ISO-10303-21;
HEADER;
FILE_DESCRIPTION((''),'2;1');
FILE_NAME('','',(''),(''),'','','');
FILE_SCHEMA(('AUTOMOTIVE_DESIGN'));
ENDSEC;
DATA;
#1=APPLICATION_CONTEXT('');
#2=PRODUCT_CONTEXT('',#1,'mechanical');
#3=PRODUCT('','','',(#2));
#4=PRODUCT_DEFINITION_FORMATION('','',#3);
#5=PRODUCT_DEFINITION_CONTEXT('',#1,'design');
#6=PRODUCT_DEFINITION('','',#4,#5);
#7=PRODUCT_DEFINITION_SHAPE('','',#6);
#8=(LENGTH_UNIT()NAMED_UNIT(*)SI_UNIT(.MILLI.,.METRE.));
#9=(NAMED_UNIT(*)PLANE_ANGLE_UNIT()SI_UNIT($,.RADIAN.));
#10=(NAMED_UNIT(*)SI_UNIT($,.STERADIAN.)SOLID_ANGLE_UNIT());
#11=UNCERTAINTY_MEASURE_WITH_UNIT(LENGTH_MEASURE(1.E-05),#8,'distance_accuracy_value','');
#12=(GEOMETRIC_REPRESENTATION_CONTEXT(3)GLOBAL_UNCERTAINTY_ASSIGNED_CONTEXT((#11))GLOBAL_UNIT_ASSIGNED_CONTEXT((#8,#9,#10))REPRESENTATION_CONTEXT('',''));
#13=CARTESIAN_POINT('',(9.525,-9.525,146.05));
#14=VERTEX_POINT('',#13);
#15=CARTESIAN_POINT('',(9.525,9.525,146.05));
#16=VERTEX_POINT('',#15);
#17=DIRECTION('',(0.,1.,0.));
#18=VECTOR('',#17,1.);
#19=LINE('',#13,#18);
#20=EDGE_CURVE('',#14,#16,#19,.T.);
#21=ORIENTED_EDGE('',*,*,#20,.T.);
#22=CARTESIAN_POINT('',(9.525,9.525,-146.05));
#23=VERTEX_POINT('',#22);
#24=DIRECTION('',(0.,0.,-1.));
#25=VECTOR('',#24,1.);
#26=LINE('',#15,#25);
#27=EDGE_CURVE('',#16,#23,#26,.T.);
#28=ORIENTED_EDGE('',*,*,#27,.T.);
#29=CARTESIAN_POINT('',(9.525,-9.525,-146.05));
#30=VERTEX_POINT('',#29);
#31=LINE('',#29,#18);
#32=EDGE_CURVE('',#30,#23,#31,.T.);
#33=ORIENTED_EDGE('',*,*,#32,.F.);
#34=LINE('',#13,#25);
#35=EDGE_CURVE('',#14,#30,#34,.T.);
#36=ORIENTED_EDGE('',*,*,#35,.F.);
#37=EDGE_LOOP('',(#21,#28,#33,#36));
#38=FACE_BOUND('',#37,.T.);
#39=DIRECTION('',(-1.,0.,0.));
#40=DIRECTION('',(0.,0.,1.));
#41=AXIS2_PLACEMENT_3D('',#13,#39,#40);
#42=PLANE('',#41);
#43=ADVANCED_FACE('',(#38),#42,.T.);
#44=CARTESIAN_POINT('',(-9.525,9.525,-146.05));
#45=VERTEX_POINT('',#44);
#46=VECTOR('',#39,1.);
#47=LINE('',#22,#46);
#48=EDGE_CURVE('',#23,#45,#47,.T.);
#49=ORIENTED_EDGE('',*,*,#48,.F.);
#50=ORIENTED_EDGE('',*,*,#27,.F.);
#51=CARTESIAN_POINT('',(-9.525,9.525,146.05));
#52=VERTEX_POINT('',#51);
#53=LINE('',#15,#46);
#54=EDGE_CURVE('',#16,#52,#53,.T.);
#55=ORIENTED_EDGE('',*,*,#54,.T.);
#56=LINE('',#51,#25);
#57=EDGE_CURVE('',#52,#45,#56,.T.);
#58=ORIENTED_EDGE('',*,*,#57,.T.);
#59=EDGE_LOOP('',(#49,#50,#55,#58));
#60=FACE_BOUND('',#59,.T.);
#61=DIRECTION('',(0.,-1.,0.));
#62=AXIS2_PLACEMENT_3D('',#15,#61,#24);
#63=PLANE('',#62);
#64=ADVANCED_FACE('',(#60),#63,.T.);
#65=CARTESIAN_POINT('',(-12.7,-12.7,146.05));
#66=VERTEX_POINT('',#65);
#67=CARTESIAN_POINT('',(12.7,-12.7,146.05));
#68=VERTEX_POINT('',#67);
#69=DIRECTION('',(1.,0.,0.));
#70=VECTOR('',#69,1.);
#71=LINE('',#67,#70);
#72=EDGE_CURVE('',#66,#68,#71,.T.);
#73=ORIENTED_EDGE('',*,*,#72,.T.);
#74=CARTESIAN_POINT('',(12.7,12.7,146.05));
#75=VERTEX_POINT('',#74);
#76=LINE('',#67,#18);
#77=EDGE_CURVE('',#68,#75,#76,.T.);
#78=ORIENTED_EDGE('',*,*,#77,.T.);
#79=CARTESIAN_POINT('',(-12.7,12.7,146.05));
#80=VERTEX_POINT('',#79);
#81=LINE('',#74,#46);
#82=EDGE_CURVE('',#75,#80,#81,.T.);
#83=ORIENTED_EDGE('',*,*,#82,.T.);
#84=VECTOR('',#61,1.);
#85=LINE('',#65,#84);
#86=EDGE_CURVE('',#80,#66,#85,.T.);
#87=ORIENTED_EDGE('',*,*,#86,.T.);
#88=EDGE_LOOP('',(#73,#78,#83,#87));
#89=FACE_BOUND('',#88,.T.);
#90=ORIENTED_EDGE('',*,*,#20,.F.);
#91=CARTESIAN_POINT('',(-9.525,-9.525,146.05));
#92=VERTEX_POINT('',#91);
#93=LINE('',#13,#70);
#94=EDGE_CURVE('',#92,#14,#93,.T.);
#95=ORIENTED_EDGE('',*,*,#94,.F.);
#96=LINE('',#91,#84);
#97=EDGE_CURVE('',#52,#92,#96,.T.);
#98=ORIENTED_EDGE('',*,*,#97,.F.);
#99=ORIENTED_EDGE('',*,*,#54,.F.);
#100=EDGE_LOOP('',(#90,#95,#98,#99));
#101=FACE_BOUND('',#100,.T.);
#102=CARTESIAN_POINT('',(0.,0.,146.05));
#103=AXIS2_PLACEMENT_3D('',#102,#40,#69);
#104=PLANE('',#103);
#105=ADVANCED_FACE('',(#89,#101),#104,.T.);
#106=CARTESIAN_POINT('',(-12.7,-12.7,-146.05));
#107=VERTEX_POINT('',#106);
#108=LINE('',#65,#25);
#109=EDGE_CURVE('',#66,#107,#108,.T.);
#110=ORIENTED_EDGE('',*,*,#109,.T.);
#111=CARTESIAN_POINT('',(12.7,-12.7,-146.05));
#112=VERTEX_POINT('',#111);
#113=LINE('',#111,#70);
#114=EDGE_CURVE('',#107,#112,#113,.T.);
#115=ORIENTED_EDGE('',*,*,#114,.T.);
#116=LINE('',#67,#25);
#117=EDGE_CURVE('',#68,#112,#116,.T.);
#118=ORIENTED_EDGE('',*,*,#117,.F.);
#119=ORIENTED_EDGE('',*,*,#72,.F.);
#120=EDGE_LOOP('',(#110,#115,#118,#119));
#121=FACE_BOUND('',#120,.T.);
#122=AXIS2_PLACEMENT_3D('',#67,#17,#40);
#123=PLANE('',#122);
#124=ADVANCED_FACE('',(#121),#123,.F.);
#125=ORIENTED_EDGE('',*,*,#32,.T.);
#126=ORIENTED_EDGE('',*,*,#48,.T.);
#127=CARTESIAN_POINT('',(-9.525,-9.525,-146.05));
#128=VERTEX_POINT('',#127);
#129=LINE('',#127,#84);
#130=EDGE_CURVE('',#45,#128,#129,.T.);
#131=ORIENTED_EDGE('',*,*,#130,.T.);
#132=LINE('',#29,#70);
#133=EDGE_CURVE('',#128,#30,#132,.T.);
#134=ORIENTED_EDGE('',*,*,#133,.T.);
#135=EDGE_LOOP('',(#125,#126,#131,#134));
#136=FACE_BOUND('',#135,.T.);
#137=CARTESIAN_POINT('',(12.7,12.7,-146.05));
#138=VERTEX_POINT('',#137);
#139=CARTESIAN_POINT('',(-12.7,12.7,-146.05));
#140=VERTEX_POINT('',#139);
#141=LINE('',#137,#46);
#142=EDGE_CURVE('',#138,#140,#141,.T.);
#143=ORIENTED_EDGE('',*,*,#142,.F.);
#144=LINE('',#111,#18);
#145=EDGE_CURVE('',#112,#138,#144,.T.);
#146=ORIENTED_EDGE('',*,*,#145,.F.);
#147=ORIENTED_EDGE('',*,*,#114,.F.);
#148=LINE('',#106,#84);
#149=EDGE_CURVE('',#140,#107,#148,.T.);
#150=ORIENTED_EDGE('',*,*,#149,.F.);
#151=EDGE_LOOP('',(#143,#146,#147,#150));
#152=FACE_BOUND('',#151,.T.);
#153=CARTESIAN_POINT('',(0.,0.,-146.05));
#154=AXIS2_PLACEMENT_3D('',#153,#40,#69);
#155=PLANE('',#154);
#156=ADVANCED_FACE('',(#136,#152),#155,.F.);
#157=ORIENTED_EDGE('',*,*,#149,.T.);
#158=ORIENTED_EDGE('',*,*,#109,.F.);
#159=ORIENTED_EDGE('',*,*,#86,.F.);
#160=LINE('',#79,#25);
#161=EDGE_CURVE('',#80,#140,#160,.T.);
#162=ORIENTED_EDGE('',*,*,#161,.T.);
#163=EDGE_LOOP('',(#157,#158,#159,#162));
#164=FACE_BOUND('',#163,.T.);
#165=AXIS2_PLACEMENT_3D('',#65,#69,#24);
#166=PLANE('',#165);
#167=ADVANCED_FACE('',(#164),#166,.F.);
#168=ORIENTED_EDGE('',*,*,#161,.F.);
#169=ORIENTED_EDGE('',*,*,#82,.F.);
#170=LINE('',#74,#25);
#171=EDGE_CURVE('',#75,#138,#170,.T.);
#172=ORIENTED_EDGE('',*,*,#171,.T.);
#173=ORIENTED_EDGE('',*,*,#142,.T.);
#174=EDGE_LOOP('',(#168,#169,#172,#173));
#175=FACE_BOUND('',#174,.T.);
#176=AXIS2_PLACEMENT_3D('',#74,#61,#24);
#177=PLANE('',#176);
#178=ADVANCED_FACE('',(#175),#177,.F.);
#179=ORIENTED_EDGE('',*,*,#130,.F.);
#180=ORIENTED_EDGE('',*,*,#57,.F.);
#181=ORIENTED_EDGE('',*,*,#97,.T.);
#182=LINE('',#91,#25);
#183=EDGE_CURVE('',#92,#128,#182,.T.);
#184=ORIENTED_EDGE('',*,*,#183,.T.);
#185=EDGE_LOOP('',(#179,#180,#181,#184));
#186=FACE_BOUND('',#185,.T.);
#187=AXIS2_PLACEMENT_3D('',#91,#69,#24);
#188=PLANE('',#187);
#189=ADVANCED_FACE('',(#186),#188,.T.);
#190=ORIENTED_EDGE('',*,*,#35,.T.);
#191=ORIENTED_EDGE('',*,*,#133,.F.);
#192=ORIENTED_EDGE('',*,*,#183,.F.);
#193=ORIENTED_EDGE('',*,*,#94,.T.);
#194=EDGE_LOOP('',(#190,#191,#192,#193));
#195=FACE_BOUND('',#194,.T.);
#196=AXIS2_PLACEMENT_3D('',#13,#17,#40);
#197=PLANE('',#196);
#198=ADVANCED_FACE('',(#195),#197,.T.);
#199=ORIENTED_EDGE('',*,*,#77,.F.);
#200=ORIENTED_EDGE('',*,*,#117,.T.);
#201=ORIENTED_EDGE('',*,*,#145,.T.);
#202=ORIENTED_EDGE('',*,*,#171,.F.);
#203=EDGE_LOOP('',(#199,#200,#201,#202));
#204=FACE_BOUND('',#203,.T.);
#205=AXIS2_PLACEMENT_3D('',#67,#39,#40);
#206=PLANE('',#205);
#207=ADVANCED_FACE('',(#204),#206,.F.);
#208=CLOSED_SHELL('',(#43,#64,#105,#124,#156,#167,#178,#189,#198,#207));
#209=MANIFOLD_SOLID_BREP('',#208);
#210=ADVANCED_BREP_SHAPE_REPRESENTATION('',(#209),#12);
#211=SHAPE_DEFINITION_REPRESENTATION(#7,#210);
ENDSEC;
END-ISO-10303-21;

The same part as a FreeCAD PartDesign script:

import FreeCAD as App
import Part
import Sketcher

V = App.Vector
Q = App.Units.Quantity

doc = App.newDocument("Part")
body = doc.addObject("PartDesign::Body", "Body")

sketch1 = doc.addObject("Sketcher::SketchObject", "Sketch")
body.addObject(sketch1)
sketch1.AttachmentSupport = (doc.XY_Plane, [""])
sketch1.MapMode = "FlatFace"
sketch1.addGeometry([
    Part.LineSegment(V(-13, 13, 0), V(-13, -13, 0)),
    Part.LineSegment(V(-13, -13, 0), V(13, -13, 0)),
    Part.LineSegment(V(13, -13, 0), V(13, 13, 0)),
    Part.LineSegment(V(13, 13, 0), V(-13, 13, 0)),
    Part.LineSegment(V(10, -10, 0), V(-10, -10, 0)),
    Part.LineSegment(V(-10, -10, 0), V(-10, 10, 0)),
    Part.LineSegment(V(-10, 10, 0), V(10, 10, 0)),
    Part.LineSegment(V(10, 10, 0), V(10, -10, 0)),
], False)
sketch1.addConstraint([
    Sketcher.Constraint("Coincident", 0, 2, 1, 1),
    Sketcher.Constraint("Coincident", 1, 2, 2, 1),
    Sketcher.Constraint("Coincident", 2, 2, 3, 1),
    Sketcher.Constraint("Coincident", 3, 2, 0, 1),
    Sketcher.Constraint("Coincident", 4, 2, 5, 1),
    Sketcher.Constraint("Coincident", 5, 2, 6, 1),
    Sketcher.Constraint("Coincident", 6, 2, 7, 1),
    Sketcher.Constraint("Coincident", 7, 2, 4, 1),
    Sketcher.Constraint("Vertical", 0),
    Sketcher.Constraint("Horizontal", 1),
    Sketcher.Constraint("Vertical", 2),
    Sketcher.Constraint("Horizontal", 3),
    Sketcher.Constraint("Horizontal", 4),
    Sketcher.Constraint("Vertical", 5),
    Sketcher.Constraint("Horizontal", 6),
    Sketcher.Constraint("Vertical", 7),
    Sketcher.Constraint("Symmetric", 0, 2, 2, 2, -1, 1),
    Sketcher.Constraint("Symmetric", 4, 2, 6, 2, -1, 1),
    Sketcher.Constraint("Equal", 3, 0),
    Sketcher.Constraint("Equal", 6, 5),
    Sketcher.Constraint("DistanceX", 1, 1, 1, 2, Q("1 in")),
    Sketcher.Constraint("DistanceX", 4, 2, 4, 1, Q("0.75 in")),
])
pad1 = doc.addObject("PartDesign::Pad", "Pad")
body.addObject(pad1)
pad1.Profile = sketch1
pad1.Type = "TwoLengths"
pad1.Length = Q("5.75 in")
pad1.Length2 = Q("5.75 in")

doc.recompute()
